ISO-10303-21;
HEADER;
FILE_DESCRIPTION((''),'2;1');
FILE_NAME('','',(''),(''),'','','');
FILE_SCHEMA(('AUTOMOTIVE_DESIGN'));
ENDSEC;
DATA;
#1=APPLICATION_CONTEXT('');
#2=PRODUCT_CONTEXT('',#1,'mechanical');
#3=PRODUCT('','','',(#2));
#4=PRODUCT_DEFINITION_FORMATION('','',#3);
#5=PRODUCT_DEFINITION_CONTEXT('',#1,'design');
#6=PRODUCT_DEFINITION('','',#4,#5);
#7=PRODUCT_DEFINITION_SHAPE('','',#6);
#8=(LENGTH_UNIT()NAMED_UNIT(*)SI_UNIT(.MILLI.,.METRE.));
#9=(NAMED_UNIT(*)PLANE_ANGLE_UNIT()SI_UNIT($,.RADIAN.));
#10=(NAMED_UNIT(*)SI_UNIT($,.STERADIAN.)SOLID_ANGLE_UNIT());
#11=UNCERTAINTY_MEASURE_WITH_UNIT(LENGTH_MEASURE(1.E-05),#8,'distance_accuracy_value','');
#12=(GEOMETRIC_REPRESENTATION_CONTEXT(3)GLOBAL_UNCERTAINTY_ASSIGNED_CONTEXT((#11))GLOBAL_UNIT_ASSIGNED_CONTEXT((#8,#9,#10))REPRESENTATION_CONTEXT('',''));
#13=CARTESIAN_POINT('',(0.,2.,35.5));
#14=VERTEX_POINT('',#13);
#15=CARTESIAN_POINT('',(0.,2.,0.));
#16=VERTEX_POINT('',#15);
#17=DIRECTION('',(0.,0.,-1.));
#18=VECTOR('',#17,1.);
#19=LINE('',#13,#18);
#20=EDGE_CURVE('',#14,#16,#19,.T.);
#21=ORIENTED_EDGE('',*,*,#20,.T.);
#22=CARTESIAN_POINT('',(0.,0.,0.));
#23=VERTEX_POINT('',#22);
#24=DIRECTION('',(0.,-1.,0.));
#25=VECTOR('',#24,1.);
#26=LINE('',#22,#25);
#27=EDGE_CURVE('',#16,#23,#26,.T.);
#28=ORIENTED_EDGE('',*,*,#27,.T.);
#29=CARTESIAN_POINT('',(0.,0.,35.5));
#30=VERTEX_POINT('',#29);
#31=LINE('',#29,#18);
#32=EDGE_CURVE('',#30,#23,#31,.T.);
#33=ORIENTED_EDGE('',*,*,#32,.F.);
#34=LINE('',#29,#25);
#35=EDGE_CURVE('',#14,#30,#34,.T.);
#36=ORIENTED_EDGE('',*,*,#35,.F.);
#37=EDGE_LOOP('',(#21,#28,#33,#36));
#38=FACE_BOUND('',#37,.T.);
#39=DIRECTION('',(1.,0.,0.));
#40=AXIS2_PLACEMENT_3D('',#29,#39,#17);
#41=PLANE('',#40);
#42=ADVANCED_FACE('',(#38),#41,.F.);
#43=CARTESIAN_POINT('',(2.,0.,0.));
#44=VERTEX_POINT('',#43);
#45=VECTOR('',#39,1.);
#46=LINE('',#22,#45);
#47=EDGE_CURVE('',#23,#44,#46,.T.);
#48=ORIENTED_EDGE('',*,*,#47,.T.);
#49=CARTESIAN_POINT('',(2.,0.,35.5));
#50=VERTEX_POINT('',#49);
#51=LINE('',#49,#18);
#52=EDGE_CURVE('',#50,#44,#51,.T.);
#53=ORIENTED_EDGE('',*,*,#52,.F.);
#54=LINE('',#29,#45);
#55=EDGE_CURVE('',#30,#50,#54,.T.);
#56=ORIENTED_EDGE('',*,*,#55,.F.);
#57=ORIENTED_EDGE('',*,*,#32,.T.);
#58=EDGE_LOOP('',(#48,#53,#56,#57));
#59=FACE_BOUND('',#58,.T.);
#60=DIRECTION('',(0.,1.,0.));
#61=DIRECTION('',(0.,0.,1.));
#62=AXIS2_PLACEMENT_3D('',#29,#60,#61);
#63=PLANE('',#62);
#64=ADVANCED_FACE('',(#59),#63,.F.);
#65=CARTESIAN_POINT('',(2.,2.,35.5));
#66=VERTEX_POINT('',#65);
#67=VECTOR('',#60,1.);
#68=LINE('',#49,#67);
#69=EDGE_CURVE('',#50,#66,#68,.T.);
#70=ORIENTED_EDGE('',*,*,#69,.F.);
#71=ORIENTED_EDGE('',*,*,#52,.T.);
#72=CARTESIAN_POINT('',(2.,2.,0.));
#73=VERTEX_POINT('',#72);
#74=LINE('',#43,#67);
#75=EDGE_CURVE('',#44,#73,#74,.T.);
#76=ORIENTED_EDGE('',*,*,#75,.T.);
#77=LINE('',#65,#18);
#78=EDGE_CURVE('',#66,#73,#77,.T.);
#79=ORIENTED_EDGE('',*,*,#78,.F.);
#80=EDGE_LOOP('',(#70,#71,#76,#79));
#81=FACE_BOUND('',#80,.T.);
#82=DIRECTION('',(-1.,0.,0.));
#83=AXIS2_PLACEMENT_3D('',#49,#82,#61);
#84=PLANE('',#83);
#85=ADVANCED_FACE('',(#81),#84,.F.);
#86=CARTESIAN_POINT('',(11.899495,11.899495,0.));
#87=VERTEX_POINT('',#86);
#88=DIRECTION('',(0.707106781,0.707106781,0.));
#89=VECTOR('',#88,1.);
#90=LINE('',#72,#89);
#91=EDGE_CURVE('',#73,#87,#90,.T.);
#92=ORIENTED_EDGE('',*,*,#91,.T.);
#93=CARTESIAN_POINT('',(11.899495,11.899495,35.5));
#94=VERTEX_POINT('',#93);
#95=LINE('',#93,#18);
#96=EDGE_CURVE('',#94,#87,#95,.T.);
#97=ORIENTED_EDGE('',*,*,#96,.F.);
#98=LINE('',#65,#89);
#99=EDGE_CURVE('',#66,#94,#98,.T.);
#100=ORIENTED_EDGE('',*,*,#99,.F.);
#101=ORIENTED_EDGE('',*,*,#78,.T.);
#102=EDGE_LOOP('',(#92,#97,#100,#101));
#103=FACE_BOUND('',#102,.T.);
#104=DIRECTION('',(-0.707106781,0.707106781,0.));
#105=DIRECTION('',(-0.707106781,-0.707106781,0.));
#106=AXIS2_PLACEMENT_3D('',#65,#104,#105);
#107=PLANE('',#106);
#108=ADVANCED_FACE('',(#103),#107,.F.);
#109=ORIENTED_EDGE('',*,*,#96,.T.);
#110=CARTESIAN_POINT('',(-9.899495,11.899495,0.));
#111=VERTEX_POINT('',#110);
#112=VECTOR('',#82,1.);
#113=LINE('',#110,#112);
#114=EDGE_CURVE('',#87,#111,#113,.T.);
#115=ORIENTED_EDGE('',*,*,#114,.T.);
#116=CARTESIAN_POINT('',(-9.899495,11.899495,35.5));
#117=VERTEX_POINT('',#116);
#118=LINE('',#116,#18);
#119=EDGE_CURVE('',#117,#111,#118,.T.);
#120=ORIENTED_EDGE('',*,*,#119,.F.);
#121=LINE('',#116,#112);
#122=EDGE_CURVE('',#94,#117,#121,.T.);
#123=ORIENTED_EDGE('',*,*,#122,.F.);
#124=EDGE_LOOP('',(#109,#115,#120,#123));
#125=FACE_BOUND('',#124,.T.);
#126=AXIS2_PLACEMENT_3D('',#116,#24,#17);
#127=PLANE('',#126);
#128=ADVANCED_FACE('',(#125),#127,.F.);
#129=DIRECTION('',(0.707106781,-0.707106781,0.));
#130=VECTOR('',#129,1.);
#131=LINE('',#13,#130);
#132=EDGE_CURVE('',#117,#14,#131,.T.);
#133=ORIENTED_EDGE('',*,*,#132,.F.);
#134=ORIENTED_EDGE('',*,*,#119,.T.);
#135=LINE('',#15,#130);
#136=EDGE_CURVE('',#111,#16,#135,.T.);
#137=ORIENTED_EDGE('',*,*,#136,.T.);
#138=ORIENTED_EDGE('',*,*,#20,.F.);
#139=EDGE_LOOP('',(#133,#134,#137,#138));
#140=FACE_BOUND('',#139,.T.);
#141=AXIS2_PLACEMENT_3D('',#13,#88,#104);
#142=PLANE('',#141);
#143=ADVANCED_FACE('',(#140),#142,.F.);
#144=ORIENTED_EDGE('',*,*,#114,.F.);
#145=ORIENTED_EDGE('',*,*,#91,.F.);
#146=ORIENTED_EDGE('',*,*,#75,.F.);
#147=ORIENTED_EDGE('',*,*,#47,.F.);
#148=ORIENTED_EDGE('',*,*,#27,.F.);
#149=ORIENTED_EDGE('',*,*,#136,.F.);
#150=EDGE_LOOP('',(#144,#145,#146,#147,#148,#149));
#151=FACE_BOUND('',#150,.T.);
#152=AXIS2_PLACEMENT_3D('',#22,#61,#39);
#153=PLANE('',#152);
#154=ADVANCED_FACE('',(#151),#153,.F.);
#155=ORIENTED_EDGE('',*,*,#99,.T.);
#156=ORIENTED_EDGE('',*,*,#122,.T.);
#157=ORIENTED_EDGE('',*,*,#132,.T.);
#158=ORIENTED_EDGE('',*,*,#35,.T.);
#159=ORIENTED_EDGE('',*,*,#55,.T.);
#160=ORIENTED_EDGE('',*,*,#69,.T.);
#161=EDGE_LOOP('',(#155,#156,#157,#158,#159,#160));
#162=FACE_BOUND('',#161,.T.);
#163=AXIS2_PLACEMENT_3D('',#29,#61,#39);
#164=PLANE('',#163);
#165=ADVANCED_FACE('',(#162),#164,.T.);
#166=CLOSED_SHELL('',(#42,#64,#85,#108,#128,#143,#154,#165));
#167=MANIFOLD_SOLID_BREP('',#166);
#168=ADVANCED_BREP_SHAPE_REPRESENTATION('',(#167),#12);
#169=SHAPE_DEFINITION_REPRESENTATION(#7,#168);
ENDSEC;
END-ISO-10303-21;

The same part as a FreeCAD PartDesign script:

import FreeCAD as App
import Part
import Sketcher

V = App.Vector


def add_polygon(sketch, points):
    """Adds a closed chain of lines whose ends are joined by coincident constraints."""
    first, n = sketch.GeometryCount, len(points)
    for a, b in zip(points, points[1:] + points[:1]):
        sketch.addGeometry(Part.LineSegment(App.Vector(*a, 0), App.Vector(*b, 0)), False)
    for i in range(n):
        sketch.addConstraint(Sketcher.Constraint("Coincident", first + i, 2, first + (i + 1) % n, 1))

doc = App.newDocument("Part")
body = doc.addObject("PartDesign::Body", "Body")

# Sketch on XY plane
sketch1 = body.newObject("Sketcher::SketchObject", "Sketch")
sketch1.AttachmentSupport = (doc.getObject("XY_Plane"), [""])
sketch1.MapMode = "FlatFace"
add_polygon(sketch1, [(0, 2), (0, 0), (2, 0), (2, 2), (11.9, 11.9), (-9.9, 11.9)])  # lines 0-5
sketch1.addConstraint(Sketcher.Constraint("Vertical", 0))
sketch1.addConstraint(Sketcher.Constraint("Horizontal", 1))
sketch1.addConstraint(Sketcher.Constraint("Vertical", 2))
sketch1.addConstraint(Sketcher.Constraint("Horizontal", 4))
sketch1.addConstraint(Sketcher.Constraint("Coincident", 0, 2, -1, 1))
sketch1.addConstraint(Sketcher.Constraint("Perpendicular", 3, 5))
sketch1.addConstraint(Sketcher.Constraint("Horizontal", 2, 2, 5, 2))
sketch1.addConstraint(Sketcher.Constraint("Equal", 1, 0))
sketch1.addConstraint(Sketcher.Constraint("Equal", 3, 5))
sketch1.addConstraint(Sketcher.Constraint("DistanceX", 1, 1, 1, 2, 2.0))
sketch1.addConstraint(Sketcher.Constraint("Distance", 3, 14.0))
pad1 = body.newObject("PartDesign::Pad", "Pad")
pad1.Profile = sketch1
pad1.Length = 35.5

doc.recompute()
